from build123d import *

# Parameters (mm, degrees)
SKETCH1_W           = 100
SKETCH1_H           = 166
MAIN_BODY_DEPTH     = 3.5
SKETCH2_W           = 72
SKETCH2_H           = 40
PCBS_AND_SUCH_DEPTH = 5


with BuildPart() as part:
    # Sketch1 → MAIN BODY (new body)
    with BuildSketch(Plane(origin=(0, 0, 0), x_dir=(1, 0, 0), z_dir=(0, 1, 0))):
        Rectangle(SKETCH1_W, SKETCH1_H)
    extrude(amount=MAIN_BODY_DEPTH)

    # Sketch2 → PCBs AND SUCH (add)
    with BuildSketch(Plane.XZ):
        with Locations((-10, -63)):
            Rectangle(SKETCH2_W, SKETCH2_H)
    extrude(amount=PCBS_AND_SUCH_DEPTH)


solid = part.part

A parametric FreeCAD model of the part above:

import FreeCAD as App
import Part
import Sketcher


def add_polygon(sketch, points):
    """Adds a closed chain of lines whose ends are joined by coincident constraints."""
    first, n = sketch.GeometryCount, len(points)
    for a, b in zip(points, points[1:] + points[:1]):
        sketch.addGeometry(Part.LineSegment(App.Vector(*a, 0), App.Vector(*b, 0)), False)
    for i in range(n):
        sketch.addConstraint(Sketcher.Constraint("Coincident", first + i, 2, first + (i + 1) % n, 1))

doc = App.newDocument("Part")
body = doc.addObject("PartDesign::Body", "Body")

sketch1 = doc.addObject("Sketcher::SketchObject", "Sketch")
body.addObject(sketch1)
sketch1.AttachmentSupport = (doc.XZ_Plane, [""])
sketch1.MapMode = "FlatFace"
add_polygon(sketch1, [(-50, -83), (-50, 83), (50, 83), (50, -83)])
sketch1.addConstraint([
    Sketcher.Constraint("Vertical", 0),
    Sketcher.Constraint("Horizontal", 1),
    Sketcher.Constraint("Vertical", 2),
    Sketcher.Constraint("Horizontal", 3),
    Sketcher.Constraint("Symmetric", 0, 2, 2, 2, -1, 1),
    Sketcher.Constraint("DistanceX", 1, 1, 1, 2, 100.0),
    Sketcher.Constraint("DistanceY", 0, 1, 0, 2, 166.0),
])
pad1 = doc.addObject("PartDesign::Pad", "Pad")
body.addObject(pad1)
pad1.Profile = sketch1
pad1.Length = 3.5
pad1.Reversed = True

sketch2 = doc.addObject("Sketcher::SketchObject", "Sketch001")
body.addObject(sketch2)
sketch2.AttachmentSupport = (doc.XZ_Plane, [""])
sketch2.MapMode = "FlatFace"
add_polygon(sketch2, [(-46, -43), (-46, -83), (26, -83), (26, -43)])
sketch2.addConstraint([
    Sketcher.Constraint("Vertical", 0),
    Sketcher.Constraint("Horizontal", 1),
    Sketcher.Constraint("Vertical", 2),
    Sketcher.Constraint("Horizontal", 3),
    Sketcher.Constraint("DistanceX", 1, 1, 1, 2, 72.0),
    Sketcher.Constraint("DistanceY", 0, 2, 0, 1, 40.0),
    Sketcher.Constraint("DistanceX", 0, 2, -1, 1, 46.0),
    Sketcher.Constraint("DistanceY", 0, 2, -1, 1, 83.0),
])
pad2 = doc.addObject("PartDesign::Pad", "Pad001")
body.addObject(pad2)
pad2.Profile = sketch2
pad2.Length = 5

doc.recompute()
